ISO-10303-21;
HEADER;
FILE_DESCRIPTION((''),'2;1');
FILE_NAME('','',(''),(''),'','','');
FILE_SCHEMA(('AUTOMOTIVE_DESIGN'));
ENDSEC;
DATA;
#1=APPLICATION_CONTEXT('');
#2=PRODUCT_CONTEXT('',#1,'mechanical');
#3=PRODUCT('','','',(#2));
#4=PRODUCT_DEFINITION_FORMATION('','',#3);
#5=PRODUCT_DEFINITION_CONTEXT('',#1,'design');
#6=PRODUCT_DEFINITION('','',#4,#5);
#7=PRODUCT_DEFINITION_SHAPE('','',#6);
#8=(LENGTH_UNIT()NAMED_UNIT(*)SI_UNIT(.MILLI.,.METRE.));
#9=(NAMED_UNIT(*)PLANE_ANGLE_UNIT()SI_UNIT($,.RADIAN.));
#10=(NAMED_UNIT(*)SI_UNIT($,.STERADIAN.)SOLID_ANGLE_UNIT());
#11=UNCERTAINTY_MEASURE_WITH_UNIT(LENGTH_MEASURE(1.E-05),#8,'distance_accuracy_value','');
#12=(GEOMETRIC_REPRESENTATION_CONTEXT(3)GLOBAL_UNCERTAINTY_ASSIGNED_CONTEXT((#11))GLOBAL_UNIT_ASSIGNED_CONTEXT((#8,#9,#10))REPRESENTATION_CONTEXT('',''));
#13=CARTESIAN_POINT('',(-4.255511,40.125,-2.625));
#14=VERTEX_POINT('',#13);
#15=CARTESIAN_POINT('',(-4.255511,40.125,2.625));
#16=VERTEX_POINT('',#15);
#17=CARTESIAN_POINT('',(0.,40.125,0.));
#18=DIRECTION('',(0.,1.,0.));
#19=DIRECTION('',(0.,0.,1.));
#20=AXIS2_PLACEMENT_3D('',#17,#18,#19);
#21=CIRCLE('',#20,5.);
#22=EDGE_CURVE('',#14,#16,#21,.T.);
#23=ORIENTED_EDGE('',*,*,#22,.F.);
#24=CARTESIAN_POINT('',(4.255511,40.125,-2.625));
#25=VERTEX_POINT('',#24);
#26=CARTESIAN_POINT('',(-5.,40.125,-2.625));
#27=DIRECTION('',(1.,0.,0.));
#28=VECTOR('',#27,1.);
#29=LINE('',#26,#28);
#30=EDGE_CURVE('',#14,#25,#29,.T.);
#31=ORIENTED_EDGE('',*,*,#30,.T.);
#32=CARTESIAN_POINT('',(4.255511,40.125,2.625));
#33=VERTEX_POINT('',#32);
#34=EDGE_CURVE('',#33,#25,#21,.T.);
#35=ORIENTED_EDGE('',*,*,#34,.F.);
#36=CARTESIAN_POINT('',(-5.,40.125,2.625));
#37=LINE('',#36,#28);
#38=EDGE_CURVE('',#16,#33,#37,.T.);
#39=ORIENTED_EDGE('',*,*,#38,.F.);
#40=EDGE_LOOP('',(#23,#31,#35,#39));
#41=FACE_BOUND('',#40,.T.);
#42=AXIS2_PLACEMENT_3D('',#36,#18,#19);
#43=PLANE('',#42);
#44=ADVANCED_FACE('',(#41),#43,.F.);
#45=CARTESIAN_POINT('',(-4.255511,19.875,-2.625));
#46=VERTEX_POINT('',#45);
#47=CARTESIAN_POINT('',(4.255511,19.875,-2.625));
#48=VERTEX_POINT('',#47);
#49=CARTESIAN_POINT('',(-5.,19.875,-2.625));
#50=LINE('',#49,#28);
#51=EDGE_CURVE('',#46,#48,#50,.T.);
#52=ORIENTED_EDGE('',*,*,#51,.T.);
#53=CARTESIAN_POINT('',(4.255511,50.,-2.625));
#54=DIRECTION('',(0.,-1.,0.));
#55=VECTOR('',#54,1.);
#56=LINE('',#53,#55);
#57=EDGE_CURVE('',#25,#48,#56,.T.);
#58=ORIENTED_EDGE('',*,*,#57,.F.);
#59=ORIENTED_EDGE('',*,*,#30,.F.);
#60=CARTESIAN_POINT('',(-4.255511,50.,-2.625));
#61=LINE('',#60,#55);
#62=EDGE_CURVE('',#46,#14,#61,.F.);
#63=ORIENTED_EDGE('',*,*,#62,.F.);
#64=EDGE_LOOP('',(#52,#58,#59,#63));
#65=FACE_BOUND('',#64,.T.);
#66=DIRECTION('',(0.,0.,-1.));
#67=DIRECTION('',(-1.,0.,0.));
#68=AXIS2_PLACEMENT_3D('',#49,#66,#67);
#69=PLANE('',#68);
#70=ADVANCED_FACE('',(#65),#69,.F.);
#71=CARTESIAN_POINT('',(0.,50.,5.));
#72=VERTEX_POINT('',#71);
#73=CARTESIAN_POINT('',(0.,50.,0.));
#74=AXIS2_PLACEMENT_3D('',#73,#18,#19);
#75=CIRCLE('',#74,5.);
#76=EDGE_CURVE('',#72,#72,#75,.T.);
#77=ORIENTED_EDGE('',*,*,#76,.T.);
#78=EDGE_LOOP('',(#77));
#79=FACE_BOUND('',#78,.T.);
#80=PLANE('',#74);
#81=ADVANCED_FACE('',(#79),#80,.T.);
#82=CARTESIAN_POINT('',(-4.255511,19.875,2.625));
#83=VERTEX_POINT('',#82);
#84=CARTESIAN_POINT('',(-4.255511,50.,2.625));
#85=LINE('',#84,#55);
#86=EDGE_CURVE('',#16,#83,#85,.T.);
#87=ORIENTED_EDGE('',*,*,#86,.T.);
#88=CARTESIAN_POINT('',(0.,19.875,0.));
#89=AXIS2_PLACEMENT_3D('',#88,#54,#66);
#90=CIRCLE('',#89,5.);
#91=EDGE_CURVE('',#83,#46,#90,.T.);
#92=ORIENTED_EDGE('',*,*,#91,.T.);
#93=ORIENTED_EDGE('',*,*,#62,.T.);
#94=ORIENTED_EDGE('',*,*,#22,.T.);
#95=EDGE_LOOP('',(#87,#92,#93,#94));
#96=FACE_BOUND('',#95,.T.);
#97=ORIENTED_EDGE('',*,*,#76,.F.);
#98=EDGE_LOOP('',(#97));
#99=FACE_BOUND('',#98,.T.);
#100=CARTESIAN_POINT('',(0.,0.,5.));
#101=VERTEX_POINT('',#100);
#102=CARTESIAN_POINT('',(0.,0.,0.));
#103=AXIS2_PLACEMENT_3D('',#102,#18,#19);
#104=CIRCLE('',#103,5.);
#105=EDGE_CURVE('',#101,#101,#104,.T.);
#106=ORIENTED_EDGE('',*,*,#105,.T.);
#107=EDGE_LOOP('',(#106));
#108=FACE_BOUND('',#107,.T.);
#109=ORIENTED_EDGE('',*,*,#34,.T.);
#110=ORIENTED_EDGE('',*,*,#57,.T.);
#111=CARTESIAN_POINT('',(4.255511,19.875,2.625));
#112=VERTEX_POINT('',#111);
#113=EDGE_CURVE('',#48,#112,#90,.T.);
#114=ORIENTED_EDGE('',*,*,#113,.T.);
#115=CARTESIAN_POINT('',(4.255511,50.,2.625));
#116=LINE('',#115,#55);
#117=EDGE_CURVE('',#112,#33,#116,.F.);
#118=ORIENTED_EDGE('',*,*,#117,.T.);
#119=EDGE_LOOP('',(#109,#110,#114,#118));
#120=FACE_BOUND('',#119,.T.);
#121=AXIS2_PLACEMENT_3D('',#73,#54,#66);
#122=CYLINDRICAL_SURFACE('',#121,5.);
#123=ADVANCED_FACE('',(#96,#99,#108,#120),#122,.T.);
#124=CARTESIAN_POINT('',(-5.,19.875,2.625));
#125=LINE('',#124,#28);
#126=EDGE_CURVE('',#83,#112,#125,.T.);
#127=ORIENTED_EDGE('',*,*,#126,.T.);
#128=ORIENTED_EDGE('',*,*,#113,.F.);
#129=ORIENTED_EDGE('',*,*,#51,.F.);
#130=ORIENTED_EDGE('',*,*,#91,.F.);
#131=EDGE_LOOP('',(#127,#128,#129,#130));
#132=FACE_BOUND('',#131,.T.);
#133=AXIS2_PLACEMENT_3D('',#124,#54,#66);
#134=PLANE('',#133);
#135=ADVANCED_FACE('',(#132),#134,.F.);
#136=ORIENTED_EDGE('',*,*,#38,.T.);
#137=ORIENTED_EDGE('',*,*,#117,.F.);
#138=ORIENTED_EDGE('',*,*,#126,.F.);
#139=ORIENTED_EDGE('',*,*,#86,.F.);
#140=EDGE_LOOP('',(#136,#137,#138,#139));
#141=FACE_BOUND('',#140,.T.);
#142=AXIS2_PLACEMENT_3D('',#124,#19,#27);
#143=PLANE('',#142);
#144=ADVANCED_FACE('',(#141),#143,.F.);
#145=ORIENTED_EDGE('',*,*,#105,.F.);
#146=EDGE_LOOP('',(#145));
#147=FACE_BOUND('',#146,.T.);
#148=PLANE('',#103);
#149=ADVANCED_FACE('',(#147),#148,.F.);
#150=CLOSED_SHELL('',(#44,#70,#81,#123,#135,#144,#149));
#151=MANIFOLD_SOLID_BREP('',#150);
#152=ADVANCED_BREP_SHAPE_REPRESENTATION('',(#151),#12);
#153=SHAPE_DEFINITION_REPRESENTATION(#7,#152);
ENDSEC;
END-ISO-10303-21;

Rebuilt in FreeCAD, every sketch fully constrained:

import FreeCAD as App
import Part
import Sketcher

V = App.Vector
Q = App.Units.Quantity


def add_polygon(sketch, points):
    """Adds a closed chain of lines whose ends are joined by coincident constraints."""
    first, n = sketch.GeometryCount, len(points)
    for a, b in zip(points, points[1:] + points[:1]):
        sketch.addGeometry(Part.LineSegment(App.Vector(*a, 0), App.Vector(*b, 0)), False)
    for i in range(n):
        sketch.addConstraint(Sketcher.Constraint("Coincident", first + i, 2, first + (i + 1) % n, 1))

doc = App.newDocument("Part")
params = doc.addObject("Spreadsheet::Sheet", "Params")
for row, (alias, value) in enumerate([
    ("sketch1_diameter", "10 mm"),
    ("pad1_length", "50 mm"),
    ("sketch2_width", "20.25 mm"),
    ("sketch2_height", "5.25 mm"),
], start=1):
    params.set(f"A{row}", alias)
    params.set(f"B{row}", "=" + value)
    params.setAlias(f"B{row}", alias)

body = doc.addObject("PartDesign::Body", "Body")

# Sketch on XZ plane
sketch1 = body.newObject("Sketcher::SketchObject", "Sketch")
sketch1.AttachmentSupport = (doc.getObject("XZ_Plane"), [""])
sketch1.MapMode = "FlatFace"
sketch1.addGeometry(Part.Circle(V(0, 0, 0), V(0, 0, 1), 5), False)
sketch1.addConstraint([
    Sketcher.Constraint("Coincident", 0, 3, -1, 1),
    Sketcher.Constraint("Diameter", 0, Q("10 mm")),
])
sketch1.setExpression("Constraints[1]", "Params.sketch1_diameter")
pad1 = body.newObject("PartDesign::Pad", "Pad")
pad1.Profile = sketch1
pad1.setExpression("Length", "Params.pad1_length")
pad1.Reversed = True

# Sketch on YZ plane
sketch2 = body.newObject("Sketcher::SketchObject", "Sketch001")
sketch2.AttachmentSupport = (doc.getObject("YZ_Plane"), [""])
sketch2.MapMode = "FlatFace"
sketch2.AttachmentOffset = App.Placement(V(0, 0, 5), App.Rotation())
add_polygon(sketch2, [(40, 3), (20, 3), (20, -3), (40, -3)])  # lines 0-3
sketch2.addConstraint([
    Sketcher.Constraint("Horizontal", 0),
    Sketcher.Constraint("Vertical", 1),
    Sketcher.Constraint("Horizontal", 2),
    Sketcher.Constraint("Vertical", 3),
    Sketcher.Constraint("DistanceX", 0, 2, 0, 1, Q("20.25 mm")),
    Sketcher.Constraint("DistanceY", 1, 2, 1, 1, Q("5.25 mm")),
    Sketcher.Constraint("DistanceX", -1, 1, 0, 2, Q("19.875 mm")),
    Sketcher.Constraint("DistanceY", -1, 1, 0, 2, Q("2.625 mm")),
])
sketch2.setExpression("Constraints[8]", "Params.sketch2_width")
sketch2.setExpression("Constraints[9]", "Params.sketch2_height")
pocket1 = body.newObject("PartDesign::Pocket", "Pocket")
pocket1.Profile = sketch2
pocket1.Type = "ThroughAll"

doc.recompute()
